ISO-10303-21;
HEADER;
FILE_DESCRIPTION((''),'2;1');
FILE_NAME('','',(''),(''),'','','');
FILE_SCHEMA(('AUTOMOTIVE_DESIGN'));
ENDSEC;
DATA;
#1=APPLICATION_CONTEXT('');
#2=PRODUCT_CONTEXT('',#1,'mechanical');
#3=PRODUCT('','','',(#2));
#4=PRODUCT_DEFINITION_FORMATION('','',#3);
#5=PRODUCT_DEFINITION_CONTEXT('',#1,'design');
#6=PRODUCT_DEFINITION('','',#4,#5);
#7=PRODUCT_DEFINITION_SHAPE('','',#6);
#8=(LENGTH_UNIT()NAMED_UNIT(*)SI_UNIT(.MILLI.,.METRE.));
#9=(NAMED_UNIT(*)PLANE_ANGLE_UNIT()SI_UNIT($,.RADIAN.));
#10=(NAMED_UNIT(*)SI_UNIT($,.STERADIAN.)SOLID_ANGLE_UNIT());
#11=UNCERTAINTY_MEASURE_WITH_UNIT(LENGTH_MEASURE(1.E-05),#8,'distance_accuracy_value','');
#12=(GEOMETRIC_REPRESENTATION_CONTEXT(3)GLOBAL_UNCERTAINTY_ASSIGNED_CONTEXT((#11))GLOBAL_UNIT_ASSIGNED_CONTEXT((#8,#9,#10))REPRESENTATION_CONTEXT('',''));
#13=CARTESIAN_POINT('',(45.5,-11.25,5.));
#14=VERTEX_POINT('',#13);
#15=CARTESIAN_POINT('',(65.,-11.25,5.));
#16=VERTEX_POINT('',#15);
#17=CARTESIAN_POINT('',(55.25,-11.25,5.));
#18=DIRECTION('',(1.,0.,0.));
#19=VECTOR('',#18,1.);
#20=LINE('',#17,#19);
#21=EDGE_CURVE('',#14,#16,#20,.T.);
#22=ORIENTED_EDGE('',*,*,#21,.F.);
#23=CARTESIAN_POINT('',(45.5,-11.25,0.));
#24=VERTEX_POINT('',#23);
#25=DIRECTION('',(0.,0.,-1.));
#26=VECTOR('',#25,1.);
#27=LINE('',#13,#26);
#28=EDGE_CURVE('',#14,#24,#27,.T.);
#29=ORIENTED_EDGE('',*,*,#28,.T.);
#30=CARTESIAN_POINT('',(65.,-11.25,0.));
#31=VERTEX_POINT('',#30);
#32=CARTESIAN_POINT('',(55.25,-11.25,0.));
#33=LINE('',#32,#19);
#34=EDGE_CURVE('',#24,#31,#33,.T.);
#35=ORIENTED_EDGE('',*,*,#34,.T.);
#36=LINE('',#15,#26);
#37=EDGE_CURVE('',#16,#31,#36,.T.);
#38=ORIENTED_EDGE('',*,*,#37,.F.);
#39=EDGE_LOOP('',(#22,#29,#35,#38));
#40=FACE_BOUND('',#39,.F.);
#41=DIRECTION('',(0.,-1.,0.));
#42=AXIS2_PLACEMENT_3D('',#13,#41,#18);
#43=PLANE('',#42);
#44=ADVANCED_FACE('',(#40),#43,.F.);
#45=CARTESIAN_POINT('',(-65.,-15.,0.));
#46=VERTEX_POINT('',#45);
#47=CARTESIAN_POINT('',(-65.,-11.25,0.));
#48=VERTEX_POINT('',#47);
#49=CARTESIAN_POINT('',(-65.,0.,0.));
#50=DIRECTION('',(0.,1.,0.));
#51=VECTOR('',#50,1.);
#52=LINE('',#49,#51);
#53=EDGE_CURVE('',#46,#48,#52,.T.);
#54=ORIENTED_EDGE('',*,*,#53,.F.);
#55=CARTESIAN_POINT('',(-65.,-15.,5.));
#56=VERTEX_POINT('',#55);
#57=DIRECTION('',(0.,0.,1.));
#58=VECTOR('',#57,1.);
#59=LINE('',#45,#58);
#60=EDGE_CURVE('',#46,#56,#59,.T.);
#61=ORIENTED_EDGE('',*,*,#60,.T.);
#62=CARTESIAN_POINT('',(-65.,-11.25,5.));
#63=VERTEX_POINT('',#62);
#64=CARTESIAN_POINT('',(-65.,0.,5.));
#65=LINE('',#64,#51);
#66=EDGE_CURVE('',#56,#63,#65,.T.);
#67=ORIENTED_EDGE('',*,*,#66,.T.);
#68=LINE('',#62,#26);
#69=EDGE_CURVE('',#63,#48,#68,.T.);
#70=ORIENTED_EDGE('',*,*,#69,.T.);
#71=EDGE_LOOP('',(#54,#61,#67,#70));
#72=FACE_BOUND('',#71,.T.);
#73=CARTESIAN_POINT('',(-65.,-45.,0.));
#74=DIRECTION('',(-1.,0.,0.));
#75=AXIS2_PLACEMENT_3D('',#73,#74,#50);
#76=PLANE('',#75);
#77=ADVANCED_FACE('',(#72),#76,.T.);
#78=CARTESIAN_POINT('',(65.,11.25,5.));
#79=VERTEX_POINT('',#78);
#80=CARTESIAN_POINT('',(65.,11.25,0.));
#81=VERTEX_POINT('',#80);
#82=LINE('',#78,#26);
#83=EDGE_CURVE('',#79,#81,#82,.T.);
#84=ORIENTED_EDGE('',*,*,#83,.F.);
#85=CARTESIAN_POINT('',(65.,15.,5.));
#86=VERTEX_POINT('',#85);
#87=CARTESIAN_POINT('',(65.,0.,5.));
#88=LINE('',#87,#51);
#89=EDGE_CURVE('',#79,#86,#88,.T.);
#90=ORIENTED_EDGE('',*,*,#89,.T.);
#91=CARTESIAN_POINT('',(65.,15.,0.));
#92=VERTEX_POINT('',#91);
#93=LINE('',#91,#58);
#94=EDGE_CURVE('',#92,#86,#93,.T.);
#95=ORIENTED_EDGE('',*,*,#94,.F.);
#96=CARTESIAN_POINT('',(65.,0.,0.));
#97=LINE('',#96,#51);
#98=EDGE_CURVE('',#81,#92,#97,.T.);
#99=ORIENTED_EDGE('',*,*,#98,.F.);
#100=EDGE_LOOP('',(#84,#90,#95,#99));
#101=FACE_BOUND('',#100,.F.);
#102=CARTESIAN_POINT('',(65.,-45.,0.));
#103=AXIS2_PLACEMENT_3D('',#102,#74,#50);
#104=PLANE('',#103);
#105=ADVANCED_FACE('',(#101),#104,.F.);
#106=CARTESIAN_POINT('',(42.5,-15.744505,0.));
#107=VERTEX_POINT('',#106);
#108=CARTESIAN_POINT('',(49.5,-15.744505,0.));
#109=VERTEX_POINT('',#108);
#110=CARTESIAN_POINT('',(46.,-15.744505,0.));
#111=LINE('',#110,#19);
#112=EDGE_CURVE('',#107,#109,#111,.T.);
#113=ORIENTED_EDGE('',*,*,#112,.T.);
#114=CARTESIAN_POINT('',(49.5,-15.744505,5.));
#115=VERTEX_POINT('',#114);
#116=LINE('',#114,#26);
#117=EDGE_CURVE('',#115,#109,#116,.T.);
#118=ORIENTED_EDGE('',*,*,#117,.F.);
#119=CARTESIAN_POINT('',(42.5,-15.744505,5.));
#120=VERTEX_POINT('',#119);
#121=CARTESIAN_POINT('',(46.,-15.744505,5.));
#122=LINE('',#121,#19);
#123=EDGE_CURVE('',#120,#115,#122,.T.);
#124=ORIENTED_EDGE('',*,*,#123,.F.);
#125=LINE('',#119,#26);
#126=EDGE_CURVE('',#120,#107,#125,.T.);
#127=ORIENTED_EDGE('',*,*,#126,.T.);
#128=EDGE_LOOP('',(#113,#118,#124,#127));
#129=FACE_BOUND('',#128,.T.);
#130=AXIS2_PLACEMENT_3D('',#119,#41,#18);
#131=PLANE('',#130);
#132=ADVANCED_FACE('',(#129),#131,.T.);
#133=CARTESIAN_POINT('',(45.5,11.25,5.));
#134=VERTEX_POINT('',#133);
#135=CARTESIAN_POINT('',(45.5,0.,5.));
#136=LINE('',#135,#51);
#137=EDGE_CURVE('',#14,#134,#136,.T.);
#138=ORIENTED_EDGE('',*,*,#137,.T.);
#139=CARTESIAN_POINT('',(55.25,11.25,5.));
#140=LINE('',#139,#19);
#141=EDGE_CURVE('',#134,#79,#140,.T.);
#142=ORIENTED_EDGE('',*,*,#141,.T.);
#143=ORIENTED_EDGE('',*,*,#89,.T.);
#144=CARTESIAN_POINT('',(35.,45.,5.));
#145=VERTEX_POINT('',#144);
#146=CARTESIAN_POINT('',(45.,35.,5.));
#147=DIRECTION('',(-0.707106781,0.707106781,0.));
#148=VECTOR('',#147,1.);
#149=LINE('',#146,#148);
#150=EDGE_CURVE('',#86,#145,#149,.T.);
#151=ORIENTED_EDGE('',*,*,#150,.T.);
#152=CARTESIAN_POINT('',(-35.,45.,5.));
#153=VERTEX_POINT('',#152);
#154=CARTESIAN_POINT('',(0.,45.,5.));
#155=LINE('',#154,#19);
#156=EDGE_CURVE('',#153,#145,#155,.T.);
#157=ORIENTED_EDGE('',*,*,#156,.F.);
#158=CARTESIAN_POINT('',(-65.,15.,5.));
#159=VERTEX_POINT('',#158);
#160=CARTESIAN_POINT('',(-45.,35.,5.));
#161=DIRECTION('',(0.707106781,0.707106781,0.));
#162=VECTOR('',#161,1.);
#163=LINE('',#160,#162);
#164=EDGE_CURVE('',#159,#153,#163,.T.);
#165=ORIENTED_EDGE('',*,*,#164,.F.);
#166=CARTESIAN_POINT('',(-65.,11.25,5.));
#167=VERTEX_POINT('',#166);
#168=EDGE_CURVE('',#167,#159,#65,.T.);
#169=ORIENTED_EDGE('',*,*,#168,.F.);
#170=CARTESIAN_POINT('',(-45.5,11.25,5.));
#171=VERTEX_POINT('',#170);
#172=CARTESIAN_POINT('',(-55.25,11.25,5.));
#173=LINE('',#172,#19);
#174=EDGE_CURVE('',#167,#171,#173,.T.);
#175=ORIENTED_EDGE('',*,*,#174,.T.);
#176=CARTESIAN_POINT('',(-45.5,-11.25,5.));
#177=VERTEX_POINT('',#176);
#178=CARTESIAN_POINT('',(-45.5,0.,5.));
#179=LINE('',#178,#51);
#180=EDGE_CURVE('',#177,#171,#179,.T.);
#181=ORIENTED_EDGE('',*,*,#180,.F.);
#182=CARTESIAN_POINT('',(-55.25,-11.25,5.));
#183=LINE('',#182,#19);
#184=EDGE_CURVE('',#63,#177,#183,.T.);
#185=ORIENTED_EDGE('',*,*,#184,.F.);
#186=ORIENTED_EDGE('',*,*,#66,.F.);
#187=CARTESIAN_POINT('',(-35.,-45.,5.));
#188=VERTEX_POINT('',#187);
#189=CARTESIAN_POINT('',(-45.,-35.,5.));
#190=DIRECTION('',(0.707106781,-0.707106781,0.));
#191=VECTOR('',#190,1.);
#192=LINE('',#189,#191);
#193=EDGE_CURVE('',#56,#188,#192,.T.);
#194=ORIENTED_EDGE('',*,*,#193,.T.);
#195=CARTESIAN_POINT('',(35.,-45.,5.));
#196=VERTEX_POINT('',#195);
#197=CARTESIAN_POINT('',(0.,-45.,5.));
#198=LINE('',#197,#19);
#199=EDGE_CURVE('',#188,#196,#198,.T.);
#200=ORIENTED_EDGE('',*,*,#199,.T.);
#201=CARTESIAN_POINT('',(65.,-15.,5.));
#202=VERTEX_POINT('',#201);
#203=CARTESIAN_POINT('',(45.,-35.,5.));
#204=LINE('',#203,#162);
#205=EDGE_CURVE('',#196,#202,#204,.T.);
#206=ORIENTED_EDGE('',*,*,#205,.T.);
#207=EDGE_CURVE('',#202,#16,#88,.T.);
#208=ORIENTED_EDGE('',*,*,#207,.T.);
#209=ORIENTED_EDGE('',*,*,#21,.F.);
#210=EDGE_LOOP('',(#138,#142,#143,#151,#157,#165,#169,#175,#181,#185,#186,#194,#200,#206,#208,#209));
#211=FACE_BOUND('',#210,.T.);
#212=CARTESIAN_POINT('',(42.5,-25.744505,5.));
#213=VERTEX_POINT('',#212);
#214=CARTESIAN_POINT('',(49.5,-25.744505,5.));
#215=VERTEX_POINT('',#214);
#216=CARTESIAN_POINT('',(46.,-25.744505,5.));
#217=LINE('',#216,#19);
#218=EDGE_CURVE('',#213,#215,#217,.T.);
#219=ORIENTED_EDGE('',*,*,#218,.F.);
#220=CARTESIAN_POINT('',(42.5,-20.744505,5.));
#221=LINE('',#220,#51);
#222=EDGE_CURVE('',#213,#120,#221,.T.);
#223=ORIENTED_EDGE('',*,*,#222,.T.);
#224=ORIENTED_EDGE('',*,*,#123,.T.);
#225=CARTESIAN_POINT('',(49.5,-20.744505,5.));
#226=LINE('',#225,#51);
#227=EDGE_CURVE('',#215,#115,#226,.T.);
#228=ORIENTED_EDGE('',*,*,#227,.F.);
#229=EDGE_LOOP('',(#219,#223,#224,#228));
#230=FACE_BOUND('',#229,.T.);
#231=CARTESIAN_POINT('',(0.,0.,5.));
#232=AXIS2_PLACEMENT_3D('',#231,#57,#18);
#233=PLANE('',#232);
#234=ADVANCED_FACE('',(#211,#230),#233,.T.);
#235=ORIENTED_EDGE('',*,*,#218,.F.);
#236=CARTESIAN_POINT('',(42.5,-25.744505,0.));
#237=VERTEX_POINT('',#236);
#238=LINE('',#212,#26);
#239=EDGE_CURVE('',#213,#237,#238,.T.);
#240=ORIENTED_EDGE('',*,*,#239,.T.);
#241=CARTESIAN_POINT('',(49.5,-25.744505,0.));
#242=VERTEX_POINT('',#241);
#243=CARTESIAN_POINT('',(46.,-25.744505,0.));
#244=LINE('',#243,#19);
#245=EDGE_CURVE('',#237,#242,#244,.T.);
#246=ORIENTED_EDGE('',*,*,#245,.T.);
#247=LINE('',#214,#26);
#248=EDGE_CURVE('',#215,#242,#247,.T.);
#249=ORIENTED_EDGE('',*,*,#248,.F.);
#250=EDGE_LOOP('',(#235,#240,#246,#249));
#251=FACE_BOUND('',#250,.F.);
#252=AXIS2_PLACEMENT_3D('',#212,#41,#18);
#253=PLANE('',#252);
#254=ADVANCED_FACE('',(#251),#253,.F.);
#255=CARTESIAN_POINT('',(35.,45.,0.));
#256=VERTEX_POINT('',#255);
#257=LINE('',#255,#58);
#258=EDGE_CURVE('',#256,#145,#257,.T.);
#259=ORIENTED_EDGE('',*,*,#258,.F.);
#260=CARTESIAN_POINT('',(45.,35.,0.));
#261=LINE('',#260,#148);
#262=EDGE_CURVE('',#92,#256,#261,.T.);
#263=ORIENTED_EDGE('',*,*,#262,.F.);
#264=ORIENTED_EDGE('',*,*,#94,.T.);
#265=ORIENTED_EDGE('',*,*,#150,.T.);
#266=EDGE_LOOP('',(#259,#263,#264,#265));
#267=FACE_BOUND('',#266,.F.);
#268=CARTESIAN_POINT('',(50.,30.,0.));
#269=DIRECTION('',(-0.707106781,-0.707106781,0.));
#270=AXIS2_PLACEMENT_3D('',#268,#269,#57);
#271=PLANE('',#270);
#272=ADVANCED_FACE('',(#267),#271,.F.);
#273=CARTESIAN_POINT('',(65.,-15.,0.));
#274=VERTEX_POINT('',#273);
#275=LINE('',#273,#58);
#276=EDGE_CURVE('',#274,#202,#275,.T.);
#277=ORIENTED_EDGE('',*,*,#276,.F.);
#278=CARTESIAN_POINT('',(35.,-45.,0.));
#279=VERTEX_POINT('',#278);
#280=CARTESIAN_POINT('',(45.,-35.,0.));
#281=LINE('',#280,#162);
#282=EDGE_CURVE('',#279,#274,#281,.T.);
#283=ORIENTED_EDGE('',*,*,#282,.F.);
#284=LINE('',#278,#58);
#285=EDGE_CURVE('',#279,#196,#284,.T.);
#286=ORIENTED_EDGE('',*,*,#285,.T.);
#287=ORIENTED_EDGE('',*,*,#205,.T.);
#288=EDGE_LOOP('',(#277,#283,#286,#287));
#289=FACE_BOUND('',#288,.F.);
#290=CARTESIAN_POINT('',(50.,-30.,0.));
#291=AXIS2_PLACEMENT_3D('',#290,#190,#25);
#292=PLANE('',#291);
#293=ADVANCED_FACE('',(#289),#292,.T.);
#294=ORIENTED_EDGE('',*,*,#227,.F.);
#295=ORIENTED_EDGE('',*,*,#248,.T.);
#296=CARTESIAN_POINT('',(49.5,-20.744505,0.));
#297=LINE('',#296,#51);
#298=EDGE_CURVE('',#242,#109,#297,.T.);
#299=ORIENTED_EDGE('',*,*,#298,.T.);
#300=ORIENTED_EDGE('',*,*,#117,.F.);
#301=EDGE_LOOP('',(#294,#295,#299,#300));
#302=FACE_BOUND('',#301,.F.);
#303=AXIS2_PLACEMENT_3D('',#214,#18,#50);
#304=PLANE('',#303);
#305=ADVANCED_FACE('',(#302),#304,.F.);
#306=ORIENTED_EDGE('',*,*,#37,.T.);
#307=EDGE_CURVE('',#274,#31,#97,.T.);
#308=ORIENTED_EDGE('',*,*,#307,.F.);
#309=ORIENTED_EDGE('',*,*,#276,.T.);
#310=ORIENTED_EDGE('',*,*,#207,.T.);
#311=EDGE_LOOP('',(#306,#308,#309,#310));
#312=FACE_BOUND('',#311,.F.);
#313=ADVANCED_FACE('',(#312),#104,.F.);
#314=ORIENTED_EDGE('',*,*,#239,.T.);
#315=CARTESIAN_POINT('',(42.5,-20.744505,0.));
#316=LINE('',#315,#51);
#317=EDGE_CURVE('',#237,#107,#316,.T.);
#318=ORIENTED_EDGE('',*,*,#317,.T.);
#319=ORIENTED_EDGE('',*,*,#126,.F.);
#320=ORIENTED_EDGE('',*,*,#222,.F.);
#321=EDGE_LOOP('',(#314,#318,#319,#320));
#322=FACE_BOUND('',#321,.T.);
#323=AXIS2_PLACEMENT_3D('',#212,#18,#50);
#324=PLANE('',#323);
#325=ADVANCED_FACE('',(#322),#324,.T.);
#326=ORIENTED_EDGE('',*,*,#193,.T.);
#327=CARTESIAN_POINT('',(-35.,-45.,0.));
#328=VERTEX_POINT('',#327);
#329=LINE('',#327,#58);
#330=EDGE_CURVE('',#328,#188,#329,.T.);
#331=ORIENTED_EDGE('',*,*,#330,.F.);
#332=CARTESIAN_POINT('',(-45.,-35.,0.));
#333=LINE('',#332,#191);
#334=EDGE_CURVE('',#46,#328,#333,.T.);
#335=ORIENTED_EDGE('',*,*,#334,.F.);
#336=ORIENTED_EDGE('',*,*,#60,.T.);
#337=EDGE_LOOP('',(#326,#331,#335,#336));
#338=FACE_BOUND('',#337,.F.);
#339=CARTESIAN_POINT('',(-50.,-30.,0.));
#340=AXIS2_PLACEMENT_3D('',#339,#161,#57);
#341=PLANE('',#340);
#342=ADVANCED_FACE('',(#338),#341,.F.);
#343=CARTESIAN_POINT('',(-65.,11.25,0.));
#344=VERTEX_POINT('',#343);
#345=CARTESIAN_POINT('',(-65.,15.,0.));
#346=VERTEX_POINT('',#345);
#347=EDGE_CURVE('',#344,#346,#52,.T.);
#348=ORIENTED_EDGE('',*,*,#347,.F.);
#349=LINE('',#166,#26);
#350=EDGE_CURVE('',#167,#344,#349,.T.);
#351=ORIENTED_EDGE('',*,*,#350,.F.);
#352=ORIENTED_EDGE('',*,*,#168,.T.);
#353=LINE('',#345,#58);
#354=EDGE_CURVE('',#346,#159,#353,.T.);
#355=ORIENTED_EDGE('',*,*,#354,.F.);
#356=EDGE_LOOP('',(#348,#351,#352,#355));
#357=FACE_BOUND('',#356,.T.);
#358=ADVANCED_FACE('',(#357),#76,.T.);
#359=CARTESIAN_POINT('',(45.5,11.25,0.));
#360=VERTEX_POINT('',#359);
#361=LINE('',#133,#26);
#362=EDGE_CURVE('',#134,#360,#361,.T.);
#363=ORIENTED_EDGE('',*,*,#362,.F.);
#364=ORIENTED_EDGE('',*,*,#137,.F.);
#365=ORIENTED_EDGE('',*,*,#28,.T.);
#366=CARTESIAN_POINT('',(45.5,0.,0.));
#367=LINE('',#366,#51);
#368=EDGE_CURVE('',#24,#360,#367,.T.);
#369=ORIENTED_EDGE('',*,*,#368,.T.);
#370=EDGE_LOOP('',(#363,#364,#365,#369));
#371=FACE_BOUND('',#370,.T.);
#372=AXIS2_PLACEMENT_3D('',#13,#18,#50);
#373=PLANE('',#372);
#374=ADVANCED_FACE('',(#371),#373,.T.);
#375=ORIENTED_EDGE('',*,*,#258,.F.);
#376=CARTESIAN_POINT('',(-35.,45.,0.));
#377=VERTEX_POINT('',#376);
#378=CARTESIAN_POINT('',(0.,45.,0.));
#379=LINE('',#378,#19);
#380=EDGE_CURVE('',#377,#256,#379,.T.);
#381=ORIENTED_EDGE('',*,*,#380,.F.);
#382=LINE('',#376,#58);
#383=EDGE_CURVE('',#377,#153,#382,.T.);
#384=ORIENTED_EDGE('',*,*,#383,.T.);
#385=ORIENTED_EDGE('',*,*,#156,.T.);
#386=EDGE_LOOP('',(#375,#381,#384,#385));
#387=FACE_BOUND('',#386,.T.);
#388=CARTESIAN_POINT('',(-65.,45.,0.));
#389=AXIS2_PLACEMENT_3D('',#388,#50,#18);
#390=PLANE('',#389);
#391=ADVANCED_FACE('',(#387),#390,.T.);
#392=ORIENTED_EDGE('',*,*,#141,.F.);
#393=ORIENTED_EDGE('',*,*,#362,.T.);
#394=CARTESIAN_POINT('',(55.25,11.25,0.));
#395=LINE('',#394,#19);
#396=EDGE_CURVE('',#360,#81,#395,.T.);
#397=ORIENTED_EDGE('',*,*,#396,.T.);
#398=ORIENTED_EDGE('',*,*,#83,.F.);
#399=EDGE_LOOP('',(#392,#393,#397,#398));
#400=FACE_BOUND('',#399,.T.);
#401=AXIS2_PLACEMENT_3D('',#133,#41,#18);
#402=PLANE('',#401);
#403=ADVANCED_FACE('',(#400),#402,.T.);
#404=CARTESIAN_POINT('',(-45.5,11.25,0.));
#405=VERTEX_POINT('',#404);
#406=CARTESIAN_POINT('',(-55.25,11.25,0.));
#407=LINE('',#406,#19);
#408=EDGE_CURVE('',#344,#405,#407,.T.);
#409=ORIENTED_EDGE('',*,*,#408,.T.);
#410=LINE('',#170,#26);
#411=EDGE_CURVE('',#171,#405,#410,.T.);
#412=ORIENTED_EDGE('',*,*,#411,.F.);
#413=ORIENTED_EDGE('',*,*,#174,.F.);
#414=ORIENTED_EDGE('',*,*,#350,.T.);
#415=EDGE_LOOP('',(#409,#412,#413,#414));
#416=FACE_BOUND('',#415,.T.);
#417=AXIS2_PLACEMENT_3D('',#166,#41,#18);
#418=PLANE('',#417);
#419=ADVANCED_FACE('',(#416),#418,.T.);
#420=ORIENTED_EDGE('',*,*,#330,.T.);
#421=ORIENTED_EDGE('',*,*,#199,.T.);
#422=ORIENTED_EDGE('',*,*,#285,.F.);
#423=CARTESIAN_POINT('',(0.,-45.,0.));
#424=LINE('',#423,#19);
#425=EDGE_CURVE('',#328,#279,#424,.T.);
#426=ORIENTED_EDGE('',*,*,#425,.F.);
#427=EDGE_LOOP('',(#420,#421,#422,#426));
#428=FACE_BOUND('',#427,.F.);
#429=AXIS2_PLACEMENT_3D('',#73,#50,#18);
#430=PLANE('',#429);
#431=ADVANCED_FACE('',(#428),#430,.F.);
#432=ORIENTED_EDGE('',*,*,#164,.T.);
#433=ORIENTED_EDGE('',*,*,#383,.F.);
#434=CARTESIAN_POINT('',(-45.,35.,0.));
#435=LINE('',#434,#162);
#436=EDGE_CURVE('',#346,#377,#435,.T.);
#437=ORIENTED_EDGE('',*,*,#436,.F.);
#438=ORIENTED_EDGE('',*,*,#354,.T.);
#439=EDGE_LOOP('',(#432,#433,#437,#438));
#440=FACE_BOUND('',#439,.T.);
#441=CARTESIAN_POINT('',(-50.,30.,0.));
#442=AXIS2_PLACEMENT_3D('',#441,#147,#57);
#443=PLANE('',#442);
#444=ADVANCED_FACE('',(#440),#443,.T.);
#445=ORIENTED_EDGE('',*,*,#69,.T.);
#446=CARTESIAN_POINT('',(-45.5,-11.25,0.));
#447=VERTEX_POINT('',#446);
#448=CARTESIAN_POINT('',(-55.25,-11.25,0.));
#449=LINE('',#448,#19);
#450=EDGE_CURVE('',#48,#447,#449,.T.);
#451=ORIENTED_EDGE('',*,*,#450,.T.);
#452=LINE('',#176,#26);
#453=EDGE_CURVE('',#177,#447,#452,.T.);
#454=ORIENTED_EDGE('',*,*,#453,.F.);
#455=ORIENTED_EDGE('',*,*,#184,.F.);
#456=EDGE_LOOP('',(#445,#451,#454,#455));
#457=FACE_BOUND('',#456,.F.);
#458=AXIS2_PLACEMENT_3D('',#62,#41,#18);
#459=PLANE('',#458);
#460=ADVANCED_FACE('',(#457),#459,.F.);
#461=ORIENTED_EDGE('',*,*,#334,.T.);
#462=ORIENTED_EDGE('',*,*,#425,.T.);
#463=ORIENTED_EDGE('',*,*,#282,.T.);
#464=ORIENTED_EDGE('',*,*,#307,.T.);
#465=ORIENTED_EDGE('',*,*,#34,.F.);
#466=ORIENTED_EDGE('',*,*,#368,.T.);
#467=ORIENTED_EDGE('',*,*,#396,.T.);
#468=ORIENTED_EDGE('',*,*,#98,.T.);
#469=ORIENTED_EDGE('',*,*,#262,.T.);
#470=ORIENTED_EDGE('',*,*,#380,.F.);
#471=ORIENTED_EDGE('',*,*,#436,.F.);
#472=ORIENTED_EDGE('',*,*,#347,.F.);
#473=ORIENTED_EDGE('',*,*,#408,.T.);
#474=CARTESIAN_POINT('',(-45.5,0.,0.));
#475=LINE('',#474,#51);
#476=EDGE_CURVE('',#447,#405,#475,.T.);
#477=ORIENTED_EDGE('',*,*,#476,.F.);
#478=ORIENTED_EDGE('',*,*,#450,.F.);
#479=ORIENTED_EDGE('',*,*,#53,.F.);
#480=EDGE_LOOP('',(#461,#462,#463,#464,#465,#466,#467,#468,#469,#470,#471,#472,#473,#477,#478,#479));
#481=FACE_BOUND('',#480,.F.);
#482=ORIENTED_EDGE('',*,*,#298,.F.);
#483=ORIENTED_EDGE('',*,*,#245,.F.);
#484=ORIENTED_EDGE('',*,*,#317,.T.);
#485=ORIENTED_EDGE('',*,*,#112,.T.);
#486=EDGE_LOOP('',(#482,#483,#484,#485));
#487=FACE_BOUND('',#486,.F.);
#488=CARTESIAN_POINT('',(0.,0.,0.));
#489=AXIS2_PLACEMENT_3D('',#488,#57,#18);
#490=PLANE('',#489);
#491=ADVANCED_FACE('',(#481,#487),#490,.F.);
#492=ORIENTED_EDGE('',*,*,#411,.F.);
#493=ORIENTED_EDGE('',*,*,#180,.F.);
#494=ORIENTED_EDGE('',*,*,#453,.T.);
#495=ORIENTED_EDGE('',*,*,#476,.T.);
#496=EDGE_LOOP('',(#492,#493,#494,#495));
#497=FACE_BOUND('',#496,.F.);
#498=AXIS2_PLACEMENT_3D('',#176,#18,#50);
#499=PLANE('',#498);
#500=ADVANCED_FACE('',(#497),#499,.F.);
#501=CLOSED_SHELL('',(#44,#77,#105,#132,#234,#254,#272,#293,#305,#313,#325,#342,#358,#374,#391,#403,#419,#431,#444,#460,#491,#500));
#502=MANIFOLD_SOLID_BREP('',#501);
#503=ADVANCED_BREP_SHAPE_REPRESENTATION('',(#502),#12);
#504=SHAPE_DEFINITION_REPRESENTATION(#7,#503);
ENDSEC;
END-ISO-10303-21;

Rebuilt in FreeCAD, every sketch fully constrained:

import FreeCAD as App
import Part
import Sketcher
from FreeCAD import Vector


def edges_at(feature, points):
    """Names of the edges that pass closest to the given points."""
    edges = feature.Shape.Edges
    near = lambda p: min(range(len(edges)), key=lambda i: edges[i].distToShape(Part.Vertex(*p))[0])
    return sorted({f"Edge{near(p) + 1}" for p in points})


def add_polygon(sketch, points):
    """Adds a closed chain of lines whose ends are joined by coincident constraints."""
    first, n = sketch.GeometryCount, len(points)
    for a, b in zip(points, points[1:] + points[:1]):
        sketch.addGeometry(Part.LineSegment(App.Vector(*a, 0), App.Vector(*b, 0)), False)
    for i in range(n):
        sketch.addConstraint(Sketcher.Constraint("Coincident", first + i, 2, first + (i + 1) % n, 1))

doc = App.newDocument("Part")
body = doc.addObject("PartDesign::Body", "Body")

sketch1 = body.newObject("Sketcher::SketchObject", "Sketch")
sketch1.AttachmentSupport = (doc.getObject("XY_Plane"), [""])
sketch1.MapMode = "FlatFace"
add_polygon(sketch1, [(-65, 45), (-65, -45), (65, -45), (65, 45)])
sketch1.addConstraint([
    Sketcher.Constraint("Vertical", 0),
    Sketcher.Constraint("Horizontal", 1),
    Sketcher.Constraint("Vertical", 2),
    Sketcher.Constraint("Horizontal", 3),
    Sketcher.Constraint("Symmetric", 0, 2, 2, 2, -1, 1),
    Sketcher.Constraint("DistanceX", 1, 1, 1, 2, 130.0),
    Sketcher.Constraint("DistanceY", 0, 2, 0, 1, 90.0),
])
pad1 = body.newObject("PartDesign::Pad", "Pad")
pad1.Profile = sketch1
pad1.Length = 5
doc.recompute()

chamfer = body.newObject("PartDesign::Chamfer", "Chamfer")
chamfer.Base = (pad1, edges_at(pad1, [
    (-65, -45, 2.5),
    (65, -45, 2.5),
    (65, 45, 2.5),
    (-65, 45, 2.5),
]))
chamfer.Size = 30

sketch2 = body.newObject("Sketcher::SketchObject", "Sketch001")
sketch2.AttachmentSupport = (doc.getObject("XY_Plane"), [""])
sketch2.MapMode = "FlatFace"
sketch2.AttachmentOffset = App.Placement(Vector(0, 0, 5), App.Rotation())
add_polygon(sketch2, [(46, 11), (46, -11), (65, -11), (65, 11)])
add_polygon(sketch2, [(-65, 11), (-65, -11), (-46, -11), (-46, 11)])
sketch2.addConstraint([
    Sketcher.Constraint("Vertical", 0),
    Sketcher.Constraint("Horizontal", 1),
    Sketcher.Constraint("Vertical", 2),
    Sketcher.Constraint("Horizontal", 3),
    Sketcher.Constraint("Vertical", 4),
    Sketcher.Constraint("Horizontal", 5),
    Sketcher.Constraint("Vertical", 6),
    Sketcher.Constraint("Horizontal", 7),
    Sketcher.Constraint("Symmetric", 2, 2, 4, 2, -1, 1),
    Sketcher.Constraint("Symmetric", 0, 2, 6, 2, -1, 1),
    Sketcher.Constraint("Horizontal", 1, 2, 4, 2),
    Sketcher.Constraint("DistanceX", 1, 1, 1, 2, 19.5),
    Sketcher.Constraint("DistanceY", 0, 2, 0, 1, 22.5),
    Sketcher.Constraint("DistanceX", -1, 1, 1, 2, 65.0),
])
pocket1 = body.newObject("PartDesign::Pocket", "Pocket")
pocket1.Profile = sketch2
pocket1.Length = 5

sketch3 = body.newObject("Sketcher::SketchObject", "Sketch002")
sketch3.AttachmentSupport = (doc.getObject("XY_Plane"), [""])
sketch3.MapMode = "FlatFace"
sketch3.AttachmentOffset = App.Placement(Vector(0, 0, 5), App.Rotation())
add_polygon(sketch3, [(42, -16), (42, -26), (50, -26), (50, -16)])
sketch3.addConstraint([
    Sketcher.Constraint("Vertical", 0),
    Sketcher.Constraint("Horizontal", 1),
    Sketcher.Constraint("Vertical", 2),
    Sketcher.Constraint("Horizontal", 3),
    Sketcher.Constraint("DistanceX", 1, 1, 1, 2, 7.0),
    Sketcher.Constraint("DistanceY", 0, 2, 0, 1, 10.0),
    Sketcher.Constraint("DistanceX", -1, 1, 0, 2, 42.5),
    Sketcher.Constraint("DistanceY", 0, 2, -1, 1, 25.744505),
])
pocket2 = body.newObject("PartDesign::Pocket", "Pocket001")
pocket2.Profile = sketch3
pocket2.Length = 5

doc.recompute()
